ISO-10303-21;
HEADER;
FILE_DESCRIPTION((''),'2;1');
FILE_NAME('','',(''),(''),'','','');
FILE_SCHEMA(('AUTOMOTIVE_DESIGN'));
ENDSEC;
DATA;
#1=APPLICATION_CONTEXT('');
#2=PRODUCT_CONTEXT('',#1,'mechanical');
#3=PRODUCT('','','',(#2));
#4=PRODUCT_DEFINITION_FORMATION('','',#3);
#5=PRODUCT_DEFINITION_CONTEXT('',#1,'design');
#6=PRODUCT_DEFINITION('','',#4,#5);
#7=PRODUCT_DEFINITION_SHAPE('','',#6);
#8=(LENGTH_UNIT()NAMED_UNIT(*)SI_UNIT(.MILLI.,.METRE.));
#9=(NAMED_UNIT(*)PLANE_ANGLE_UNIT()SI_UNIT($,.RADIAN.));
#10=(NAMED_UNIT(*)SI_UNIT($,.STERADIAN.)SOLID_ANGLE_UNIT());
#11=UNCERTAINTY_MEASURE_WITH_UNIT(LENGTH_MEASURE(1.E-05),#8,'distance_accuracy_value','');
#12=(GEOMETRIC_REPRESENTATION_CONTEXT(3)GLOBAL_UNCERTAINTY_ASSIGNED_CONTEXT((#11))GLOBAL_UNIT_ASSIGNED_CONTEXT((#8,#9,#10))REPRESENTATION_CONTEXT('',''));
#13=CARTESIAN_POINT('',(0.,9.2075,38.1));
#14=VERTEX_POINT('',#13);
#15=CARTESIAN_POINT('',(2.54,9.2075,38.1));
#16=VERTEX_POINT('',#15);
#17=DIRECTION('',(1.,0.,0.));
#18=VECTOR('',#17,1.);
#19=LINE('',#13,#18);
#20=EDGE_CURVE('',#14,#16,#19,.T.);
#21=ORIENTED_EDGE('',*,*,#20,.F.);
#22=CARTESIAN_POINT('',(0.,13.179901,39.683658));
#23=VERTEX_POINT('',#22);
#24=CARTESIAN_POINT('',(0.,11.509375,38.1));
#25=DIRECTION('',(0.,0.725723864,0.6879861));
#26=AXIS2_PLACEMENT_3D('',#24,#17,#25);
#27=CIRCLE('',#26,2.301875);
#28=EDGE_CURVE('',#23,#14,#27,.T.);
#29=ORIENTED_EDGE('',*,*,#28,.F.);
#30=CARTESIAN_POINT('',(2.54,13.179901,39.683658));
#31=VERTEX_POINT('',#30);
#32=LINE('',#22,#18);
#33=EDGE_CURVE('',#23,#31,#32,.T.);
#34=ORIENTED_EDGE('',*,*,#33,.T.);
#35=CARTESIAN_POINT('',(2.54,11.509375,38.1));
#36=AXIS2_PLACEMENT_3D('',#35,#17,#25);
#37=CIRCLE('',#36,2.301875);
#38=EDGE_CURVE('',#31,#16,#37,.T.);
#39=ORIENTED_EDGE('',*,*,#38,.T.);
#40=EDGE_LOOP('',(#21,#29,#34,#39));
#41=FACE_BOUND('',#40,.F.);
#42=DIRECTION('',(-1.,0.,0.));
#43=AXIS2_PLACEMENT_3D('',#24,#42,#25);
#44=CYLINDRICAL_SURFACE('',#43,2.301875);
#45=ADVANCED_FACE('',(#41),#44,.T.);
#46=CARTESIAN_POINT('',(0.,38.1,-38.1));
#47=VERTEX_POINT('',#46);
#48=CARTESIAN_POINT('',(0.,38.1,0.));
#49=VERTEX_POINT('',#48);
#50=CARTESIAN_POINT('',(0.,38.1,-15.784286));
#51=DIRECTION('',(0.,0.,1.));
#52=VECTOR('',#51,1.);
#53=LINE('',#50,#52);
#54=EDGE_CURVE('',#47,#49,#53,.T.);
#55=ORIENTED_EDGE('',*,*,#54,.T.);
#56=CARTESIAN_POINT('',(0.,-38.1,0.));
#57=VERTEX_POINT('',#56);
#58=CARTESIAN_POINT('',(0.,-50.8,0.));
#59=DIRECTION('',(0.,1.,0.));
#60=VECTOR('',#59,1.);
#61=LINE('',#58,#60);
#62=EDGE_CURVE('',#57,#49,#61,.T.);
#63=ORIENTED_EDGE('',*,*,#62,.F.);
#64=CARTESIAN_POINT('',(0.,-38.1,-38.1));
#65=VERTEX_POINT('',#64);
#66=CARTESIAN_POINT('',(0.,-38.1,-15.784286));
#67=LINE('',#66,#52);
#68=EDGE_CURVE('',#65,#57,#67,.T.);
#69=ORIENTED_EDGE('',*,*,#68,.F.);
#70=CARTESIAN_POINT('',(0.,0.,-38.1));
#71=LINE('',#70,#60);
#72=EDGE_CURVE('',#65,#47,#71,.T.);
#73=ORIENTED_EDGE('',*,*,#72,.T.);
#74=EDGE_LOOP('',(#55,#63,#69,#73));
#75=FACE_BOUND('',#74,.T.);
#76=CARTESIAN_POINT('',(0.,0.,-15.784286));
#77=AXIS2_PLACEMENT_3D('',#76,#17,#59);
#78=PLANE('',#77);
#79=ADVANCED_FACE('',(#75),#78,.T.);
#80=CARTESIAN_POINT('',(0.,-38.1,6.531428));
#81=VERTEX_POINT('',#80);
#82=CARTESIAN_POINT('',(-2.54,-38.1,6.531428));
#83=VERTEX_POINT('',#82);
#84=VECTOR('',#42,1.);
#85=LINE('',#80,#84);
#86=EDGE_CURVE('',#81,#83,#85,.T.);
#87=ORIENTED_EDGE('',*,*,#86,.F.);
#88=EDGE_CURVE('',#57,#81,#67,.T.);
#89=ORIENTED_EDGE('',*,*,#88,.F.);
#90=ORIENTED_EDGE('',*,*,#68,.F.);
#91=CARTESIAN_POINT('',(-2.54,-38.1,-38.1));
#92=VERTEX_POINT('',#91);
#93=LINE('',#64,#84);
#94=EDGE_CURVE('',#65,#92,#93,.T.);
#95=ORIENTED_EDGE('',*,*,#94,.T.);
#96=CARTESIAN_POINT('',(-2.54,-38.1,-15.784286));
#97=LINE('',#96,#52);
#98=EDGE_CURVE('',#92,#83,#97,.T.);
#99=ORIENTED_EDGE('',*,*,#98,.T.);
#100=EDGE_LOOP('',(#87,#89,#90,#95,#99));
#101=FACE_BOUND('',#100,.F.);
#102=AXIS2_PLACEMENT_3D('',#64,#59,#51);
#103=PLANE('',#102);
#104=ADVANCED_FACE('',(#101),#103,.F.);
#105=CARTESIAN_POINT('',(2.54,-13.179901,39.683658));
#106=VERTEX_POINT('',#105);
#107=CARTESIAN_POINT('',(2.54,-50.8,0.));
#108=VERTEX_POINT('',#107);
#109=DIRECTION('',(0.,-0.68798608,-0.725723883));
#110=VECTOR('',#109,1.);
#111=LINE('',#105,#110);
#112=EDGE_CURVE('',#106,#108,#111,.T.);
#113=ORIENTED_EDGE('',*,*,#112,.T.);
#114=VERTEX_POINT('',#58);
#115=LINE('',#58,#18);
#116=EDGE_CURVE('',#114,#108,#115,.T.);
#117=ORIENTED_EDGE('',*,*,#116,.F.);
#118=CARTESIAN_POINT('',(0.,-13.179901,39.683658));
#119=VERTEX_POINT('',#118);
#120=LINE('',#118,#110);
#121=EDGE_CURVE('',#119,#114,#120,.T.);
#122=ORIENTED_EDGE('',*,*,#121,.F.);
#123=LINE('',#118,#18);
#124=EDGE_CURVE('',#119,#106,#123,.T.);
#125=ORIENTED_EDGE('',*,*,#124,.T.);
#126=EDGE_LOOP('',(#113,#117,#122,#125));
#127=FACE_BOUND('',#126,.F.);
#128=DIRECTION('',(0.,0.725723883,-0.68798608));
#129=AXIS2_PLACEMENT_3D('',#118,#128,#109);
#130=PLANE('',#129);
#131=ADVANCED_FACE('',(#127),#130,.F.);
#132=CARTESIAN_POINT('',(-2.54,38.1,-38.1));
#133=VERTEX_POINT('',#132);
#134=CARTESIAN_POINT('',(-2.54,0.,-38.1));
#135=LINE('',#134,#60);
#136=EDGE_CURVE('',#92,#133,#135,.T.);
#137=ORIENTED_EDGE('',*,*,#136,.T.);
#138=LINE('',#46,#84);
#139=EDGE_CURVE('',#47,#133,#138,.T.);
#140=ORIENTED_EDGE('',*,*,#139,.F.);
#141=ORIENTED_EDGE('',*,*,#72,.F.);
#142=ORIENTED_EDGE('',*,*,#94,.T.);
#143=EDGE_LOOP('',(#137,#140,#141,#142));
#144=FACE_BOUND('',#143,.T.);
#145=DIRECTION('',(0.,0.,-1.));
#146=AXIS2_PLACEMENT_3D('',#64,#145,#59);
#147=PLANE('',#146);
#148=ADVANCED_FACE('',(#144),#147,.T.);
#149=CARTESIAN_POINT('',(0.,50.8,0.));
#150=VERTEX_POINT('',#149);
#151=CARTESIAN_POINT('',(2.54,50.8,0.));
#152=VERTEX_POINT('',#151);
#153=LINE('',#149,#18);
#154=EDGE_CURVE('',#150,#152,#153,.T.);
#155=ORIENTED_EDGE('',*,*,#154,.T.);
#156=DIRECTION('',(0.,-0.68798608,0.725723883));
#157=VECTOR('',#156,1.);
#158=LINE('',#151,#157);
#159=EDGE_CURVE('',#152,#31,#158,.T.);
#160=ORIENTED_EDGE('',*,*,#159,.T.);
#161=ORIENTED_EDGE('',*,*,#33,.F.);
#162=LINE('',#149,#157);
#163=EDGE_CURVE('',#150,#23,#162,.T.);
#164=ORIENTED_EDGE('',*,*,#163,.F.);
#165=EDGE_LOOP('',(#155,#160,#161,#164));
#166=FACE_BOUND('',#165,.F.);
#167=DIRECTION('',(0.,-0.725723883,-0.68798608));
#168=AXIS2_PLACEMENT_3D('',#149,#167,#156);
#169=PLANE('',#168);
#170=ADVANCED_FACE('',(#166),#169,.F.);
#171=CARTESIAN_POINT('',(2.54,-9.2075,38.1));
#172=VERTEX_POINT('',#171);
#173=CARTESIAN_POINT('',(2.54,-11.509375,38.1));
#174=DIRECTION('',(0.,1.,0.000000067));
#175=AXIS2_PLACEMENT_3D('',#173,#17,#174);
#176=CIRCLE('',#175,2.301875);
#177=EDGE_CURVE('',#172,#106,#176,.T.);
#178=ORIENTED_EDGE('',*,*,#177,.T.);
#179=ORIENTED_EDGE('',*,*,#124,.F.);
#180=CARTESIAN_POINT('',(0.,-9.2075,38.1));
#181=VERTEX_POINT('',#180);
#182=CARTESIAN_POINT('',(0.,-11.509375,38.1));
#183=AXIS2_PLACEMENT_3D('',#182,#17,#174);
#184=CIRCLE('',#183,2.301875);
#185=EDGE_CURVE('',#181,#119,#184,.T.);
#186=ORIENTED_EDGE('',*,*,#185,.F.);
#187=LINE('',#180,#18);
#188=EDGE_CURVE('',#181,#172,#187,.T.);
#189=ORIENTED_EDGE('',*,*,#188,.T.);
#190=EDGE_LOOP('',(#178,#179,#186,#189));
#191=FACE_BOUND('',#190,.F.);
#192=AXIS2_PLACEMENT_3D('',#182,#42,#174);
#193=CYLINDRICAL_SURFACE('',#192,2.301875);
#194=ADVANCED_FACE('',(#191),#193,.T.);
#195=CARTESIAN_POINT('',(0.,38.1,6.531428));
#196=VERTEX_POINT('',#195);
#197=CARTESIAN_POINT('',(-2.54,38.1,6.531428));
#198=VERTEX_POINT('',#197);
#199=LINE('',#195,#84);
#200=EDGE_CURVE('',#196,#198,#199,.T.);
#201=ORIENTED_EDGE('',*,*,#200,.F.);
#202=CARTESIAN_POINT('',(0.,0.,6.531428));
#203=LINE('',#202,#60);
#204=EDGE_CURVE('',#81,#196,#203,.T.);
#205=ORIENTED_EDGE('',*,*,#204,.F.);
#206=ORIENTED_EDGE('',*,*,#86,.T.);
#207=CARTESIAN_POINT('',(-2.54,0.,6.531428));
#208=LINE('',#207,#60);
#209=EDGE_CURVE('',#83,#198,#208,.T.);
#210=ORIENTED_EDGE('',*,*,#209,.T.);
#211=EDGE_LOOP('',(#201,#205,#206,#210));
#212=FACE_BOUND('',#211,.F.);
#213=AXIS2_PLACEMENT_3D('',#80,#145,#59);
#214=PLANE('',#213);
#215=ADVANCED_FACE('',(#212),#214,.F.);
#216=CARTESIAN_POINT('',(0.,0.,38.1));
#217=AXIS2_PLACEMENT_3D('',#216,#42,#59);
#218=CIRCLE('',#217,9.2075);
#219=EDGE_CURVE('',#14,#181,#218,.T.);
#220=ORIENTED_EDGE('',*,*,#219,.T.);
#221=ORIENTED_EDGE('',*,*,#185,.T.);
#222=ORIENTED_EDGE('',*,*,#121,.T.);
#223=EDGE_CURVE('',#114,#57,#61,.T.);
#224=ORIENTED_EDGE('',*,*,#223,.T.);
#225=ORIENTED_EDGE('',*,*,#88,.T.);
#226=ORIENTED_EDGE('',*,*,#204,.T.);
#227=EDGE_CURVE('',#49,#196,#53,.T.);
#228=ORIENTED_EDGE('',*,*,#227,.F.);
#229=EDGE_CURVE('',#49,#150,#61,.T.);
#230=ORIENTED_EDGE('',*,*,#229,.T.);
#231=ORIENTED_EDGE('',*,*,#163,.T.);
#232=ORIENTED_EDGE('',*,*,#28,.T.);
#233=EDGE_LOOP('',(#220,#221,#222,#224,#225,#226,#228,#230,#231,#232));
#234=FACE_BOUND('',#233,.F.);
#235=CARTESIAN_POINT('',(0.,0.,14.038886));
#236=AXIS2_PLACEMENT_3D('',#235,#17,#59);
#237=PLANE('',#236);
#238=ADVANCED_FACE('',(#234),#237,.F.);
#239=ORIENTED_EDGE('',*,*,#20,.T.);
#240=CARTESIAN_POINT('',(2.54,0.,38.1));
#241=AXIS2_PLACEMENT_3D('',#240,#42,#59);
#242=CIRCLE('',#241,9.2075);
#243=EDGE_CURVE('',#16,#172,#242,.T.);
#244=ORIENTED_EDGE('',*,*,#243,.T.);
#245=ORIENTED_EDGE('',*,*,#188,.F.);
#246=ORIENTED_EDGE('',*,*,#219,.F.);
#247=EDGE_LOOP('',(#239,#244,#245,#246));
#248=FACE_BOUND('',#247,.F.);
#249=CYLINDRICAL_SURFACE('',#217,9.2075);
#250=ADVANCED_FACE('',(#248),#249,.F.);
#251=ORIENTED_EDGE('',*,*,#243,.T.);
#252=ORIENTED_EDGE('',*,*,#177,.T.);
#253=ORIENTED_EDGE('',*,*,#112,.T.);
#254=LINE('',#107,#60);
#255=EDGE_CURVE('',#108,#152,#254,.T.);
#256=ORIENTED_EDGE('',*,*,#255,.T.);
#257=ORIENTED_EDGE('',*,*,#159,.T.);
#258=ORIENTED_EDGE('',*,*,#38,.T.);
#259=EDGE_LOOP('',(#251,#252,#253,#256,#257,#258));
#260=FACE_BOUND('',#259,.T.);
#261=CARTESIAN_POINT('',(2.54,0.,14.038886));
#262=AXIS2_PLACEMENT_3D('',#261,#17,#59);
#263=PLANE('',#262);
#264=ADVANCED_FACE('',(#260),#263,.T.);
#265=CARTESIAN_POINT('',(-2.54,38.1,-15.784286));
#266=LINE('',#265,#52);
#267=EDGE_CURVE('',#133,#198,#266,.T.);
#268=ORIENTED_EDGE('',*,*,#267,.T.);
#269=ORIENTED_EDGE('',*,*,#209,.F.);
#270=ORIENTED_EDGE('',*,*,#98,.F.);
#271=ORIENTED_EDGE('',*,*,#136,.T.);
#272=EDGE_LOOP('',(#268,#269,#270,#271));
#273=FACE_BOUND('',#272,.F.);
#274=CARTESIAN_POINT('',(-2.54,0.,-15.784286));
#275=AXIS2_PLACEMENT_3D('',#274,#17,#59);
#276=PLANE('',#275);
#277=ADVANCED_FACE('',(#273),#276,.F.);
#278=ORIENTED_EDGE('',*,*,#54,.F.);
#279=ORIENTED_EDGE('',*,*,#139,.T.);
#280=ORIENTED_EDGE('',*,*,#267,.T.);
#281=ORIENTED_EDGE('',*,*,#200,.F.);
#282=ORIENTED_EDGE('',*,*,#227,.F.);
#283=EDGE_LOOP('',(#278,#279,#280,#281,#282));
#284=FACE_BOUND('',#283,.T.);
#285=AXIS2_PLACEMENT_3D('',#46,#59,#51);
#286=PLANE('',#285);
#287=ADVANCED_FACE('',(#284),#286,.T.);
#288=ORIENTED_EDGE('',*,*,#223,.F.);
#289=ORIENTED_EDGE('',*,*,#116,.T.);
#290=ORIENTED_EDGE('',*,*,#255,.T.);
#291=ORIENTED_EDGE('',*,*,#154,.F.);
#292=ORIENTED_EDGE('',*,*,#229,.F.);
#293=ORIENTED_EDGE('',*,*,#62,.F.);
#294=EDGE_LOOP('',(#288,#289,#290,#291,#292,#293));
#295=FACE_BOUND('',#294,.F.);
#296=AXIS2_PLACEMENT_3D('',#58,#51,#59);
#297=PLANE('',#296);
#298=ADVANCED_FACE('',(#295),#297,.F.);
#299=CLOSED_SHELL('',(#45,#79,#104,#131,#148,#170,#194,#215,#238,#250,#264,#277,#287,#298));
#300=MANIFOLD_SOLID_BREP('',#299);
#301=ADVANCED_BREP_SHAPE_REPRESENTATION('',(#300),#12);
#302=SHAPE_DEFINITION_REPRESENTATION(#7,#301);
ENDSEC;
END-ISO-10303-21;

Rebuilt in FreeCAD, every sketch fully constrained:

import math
import FreeCAD as App
import Part
import Sketcher
from FreeCAD import Vector
Q = App.Units.Quantity


def add_polygon(sketch, points):
    """Adds a closed chain of lines whose ends are joined by coincident constraints."""
    first, n = sketch.GeometryCount, len(points)
    for a, b in zip(points, points[1:] + points[:1]):
        sketch.addGeometry(Part.LineSegment(App.Vector(*a, 0), App.Vector(*b, 0)), False)
    for i in range(n):
        sketch.addConstraint(Sketcher.Constraint("Coincident", first + i, 2, first + (i + 1) % n, 1))

doc = App.newDocument("Part")
body = doc.addObject("PartDesign::Body", "Body")

# Sketch on YZ plane
sketch1 = body.newObject("Sketcher::SketchObject", "Sketch")
sketch1.AttachmentSupport = (doc.getObject("YZ_Plane"), [""])
sketch1.MapMode = "FlatFace"
sketch1.addGeometry(Part.LineSegment(Vector(-13.179901, 39.683658, 0), Vector(-50.8, 0, 0)), False)
sketch1.addGeometry(Part.LineSegment(Vector(-50.8, 0, 0), Vector(50.8, 0, 0)), False)
sketch1.addGeometry(Part.LineSegment(Vector(50.8, 0, 0), Vector(13.179901, 39.683658, 0)), False)
sketch1.addGeometry(Part.ArcOfCircle(Part.Circle(Vector(11.509375, 38.1, 0), Vector(0, 0, 1), 2.301875), math.radians(43.470902), math.radians(179.999996)), False)
sketch1.addGeometry(Part.ArcOfCircle(Part.Circle(Vector(0, 38.1, 0), Vector(0, 0, 1), 9.2075), math.radians(180), math.radians(360)), False)
sketch1.addGeometry(Part.ArcOfCircle(Part.Circle(Vector(-11.509375, 38.1, 0), Vector(0, 0, 1), 2.301875), math.radians(0.000004), math.radians(136.529098)), False)
sketch1.addConstraint(Sketcher.Constraint("Coincident", 0, 2, 1, 1))
sketch1.addConstraint(Sketcher.Constraint("Coincident", 1, 2, 2, 1))
sketch1.addConstraint(Sketcher.Constraint("Tangent", 2, 2, 3, 1))
sketch1.addConstraint(Sketcher.Constraint("Tangent", 3, 2, 4, 2))
sketch1.addConstraint(Sketcher.Constraint("Tangent", 4, 1, 5, 1))
sketch1.addConstraint(Sketcher.Constraint("Tangent", 5, 2, 0, 1))
sketch1.addConstraint(Sketcher.Constraint("Horizontal", 1))
sketch1.addConstraint(Sketcher.Constraint("Equal", 3, 5))
sketch1.addConstraint(Sketcher.Constraint("Symmetric", 0, 2, 1, 2, -1, 1))
sketch1.addConstraint(Sketcher.Constraint("Symmetric", 3, 3, 5, 3, -2))
sketch1.addConstraint(Sketcher.Constraint("Horizontal", 3, 3, 4, 3))
sketch1.addConstraint(Sketcher.Constraint("DistanceX", 1, 1, 1, 2, Q("4 in")))
sketch1.addConstraint(Sketcher.Constraint("DistanceY", -1, 1, 3, 3, Q("1.5 in")))
sketch1.addConstraint(Sketcher.Constraint("Radius", 4, Q("0.3625 in")))
sketch1.addConstraint(Sketcher.Constraint("DistanceX", -1, 1, 3, 3, Q("0.453125 in")))
pad1 = body.newObject("PartDesign::Pad", "Pad")
pad1.Profile = sketch1
pad1.Length = Q("0.1 in")

# Sketch on YZ plane
sketch2 = body.newObject("Sketcher::SketchObject", "Sketch001")
sketch2.AttachmentSupport = (doc.getObject("YZ_Plane"), [""])
sketch2.MapMode = "FlatFace"
add_polygon(sketch2, [(-38.1, 6.531428), (-38.1, -38.1), (38.1, -38.1), (38.1, 6.531428)])  # lines 0-3
sketch2.addConstraint(Sketcher.Constraint("Vertical", 0))
sketch2.addConstraint(Sketcher.Constraint("Horizontal", 1))
sketch2.addConstraint(Sketcher.Constraint("Vertical", 2))
sketch2.addConstraint(Sketcher.Constraint("Horizontal", 3))
sketch2.addConstraint(Sketcher.Constraint("DistanceX", 1, 1, 1, 2, Q("3 in")))
sketch2.addConstraint(Sketcher.Constraint("DistanceX", 0, 2, -1, 1, Q("1.5 in")))
sketch2.addConstraint(Sketcher.Constraint("DistanceY", 0, 2, -1, 1, Q("1.5 in")))
sketch2.addConstraint(Sketcher.Constraint("DistanceY", 0, 2, 0, 1, Q("44.631428 mm")))
pad2 = body.newObject("PartDesign::Pad", "Pad001")
pad2.Profile = sketch2
pad2.Length = Q("0.1 in")
pad2.Reversed = True

doc.recompute()
